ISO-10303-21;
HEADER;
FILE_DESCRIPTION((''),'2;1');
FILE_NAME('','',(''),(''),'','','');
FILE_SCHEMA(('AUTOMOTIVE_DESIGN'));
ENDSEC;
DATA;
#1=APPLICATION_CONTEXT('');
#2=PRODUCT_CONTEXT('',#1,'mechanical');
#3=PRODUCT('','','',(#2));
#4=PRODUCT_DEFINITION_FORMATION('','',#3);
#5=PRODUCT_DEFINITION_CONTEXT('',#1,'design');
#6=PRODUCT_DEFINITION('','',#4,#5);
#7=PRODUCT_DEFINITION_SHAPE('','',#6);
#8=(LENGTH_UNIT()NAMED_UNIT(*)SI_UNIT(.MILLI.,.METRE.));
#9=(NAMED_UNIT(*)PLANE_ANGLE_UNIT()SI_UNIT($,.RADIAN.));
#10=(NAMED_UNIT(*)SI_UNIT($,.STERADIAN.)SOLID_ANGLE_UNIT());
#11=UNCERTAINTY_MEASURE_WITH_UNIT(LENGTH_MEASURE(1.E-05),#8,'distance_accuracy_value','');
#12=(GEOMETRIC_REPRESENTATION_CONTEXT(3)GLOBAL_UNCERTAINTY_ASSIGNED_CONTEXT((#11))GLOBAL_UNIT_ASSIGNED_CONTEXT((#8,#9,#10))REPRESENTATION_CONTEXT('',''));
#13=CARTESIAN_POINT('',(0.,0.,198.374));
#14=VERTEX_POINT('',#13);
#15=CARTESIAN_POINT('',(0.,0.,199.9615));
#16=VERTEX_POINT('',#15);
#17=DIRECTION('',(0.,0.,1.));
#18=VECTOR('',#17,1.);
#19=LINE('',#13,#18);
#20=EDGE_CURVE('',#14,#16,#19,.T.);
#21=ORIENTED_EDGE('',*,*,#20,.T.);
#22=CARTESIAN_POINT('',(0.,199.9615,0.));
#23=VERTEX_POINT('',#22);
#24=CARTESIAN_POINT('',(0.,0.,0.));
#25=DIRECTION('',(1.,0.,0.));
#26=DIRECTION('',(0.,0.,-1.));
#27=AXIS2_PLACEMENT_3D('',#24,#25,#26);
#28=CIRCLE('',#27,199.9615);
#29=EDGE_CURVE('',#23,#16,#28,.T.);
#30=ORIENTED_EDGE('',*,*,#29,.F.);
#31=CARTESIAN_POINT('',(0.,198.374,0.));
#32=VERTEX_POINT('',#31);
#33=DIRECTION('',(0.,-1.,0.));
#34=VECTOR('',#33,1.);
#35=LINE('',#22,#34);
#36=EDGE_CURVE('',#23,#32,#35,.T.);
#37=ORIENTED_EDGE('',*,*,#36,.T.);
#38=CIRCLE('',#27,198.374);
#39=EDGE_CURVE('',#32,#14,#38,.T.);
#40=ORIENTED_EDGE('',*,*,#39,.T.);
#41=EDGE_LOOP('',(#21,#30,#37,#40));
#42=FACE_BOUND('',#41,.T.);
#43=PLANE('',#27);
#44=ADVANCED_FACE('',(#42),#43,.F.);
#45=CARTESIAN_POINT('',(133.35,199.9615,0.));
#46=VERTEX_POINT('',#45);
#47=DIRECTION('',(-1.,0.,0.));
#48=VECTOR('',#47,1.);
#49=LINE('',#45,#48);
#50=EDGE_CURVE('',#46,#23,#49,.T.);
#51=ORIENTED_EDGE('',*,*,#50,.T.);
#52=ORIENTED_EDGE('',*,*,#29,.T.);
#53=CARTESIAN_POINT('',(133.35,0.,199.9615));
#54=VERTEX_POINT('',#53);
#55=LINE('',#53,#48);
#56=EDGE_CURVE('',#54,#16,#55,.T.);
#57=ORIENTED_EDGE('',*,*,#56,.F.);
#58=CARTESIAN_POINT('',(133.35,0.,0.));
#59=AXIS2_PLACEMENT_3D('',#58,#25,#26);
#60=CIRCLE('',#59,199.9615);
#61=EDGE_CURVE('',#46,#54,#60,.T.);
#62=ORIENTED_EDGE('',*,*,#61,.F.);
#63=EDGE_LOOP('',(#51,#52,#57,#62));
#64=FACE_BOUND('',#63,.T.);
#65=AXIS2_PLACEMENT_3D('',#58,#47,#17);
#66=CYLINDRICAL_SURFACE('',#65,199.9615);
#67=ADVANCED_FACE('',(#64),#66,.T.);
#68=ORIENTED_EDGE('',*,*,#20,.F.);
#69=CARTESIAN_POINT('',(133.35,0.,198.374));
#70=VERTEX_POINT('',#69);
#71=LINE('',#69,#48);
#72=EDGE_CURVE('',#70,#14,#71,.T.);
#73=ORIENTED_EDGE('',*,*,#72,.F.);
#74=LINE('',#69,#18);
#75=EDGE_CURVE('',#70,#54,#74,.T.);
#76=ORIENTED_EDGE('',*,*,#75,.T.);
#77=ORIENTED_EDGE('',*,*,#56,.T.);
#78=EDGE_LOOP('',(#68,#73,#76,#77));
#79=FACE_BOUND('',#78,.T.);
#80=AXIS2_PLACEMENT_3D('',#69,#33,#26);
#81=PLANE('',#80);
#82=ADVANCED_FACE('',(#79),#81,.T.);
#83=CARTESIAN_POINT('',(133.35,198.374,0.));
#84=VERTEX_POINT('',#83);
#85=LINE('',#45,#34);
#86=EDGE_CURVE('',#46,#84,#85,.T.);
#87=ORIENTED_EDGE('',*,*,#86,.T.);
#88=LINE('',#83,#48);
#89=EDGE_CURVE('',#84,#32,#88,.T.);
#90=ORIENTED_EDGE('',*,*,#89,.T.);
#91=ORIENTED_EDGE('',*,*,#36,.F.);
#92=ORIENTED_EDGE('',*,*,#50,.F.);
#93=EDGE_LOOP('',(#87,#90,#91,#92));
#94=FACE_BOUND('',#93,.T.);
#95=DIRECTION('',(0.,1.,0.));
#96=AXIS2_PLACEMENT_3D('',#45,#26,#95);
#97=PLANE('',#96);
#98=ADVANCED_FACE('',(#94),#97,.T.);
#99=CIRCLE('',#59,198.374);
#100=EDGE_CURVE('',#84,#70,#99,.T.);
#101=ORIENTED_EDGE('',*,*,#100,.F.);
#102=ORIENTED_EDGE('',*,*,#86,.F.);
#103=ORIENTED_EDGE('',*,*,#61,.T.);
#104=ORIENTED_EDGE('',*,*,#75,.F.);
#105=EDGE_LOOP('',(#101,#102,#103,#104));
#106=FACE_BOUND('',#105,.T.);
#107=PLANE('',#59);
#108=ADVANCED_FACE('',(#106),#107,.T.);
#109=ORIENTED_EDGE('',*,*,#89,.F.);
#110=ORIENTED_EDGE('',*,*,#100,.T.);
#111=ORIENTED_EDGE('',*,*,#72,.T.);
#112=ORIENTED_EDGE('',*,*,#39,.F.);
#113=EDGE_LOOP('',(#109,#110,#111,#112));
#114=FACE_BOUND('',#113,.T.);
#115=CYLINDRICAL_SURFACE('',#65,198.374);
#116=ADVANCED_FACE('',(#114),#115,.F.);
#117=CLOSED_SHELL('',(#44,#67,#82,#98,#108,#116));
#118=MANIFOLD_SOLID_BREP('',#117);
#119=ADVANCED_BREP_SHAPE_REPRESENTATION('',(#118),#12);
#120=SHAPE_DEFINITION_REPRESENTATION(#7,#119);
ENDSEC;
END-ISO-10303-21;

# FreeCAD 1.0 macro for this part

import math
import FreeCAD as App
import Part
import Sketcher
Q = App.Units.Quantity

doc = App.newDocument("Part")
params = doc.addObject("Spreadsheet::Sheet", "Params")
for row, (alias, value) in enumerate([
    ("sketch1_radius", "7.81 in"),
    ("pad1_length", "5.25 in"),
], start=1):
    params.set(f"A{row}", alias)
    params.set(f"B{row}", "=" + value)
    params.setAlias(f"B{row}", alias)

body = doc.addObject("PartDesign::Body", "Body")

# Sketch on YZ plane
sketch1 = body.newObject("Sketcher::SketchObject", "Sketch")
sketch1.AttachmentSupport = (doc.getObject("YZ_Plane"), [""])
sketch1.MapMode = "FlatFace"
sketch1.addGeometry([
    Part.ArcOfCircle(Part.Circle(App.Vector(0, 0, 0), App.Vector(0, 0, 1), 198.4), math.radians(0), math.radians(90)),
    Part.LineSegment(App.Vector(198.4, 0, 0), App.Vector(200, 0, 0)),
    Part.ArcOfCircle(Part.Circle(App.Vector(0, 0, 0), App.Vector(0, 0, 1), 200), math.radians(0), math.radians(90)),
    Part.LineSegment(App.Vector(0, 200, 0), App.Vector(0, 198.4, 0)),
], False)
sketch1.addConstraint([
    Sketcher.Constraint("Coincident", 0, 1, 1, 1),
    Sketcher.Constraint("Coincident", 1, 2, 2, 1),
    Sketcher.Constraint("Coincident", 2, 2, 3, 1),
    Sketcher.Constraint("Coincident", 3, 2, 0, 2),
    Sketcher.Constraint("Horizontal", 1),
    Sketcher.Constraint("Vertical", 3),
    Sketcher.Constraint("Coincident", 0, 3, -1, 1),
    Sketcher.Constraint("Coincident", 2, 3, -1, 1),
    Sketcher.Constraint("PointOnObject", 0, 1, -1),
    Sketcher.Constraint("PointOnObject", 2, 2, -2),
    Sketcher.Constraint("Radius", 0, Q("7.81 in")),
    Sketcher.Constraint("Radius", 2, Q("7.8725 in")),
])
sketch1.setExpression("Constraints[10]", "Params.sketch1_radius")
pad1 = body.newObject("PartDesign::Pad", "Pad")
pad1.Profile = sketch1
pad1.setExpression("Length", "Params.pad1_length")

doc.recompute()
